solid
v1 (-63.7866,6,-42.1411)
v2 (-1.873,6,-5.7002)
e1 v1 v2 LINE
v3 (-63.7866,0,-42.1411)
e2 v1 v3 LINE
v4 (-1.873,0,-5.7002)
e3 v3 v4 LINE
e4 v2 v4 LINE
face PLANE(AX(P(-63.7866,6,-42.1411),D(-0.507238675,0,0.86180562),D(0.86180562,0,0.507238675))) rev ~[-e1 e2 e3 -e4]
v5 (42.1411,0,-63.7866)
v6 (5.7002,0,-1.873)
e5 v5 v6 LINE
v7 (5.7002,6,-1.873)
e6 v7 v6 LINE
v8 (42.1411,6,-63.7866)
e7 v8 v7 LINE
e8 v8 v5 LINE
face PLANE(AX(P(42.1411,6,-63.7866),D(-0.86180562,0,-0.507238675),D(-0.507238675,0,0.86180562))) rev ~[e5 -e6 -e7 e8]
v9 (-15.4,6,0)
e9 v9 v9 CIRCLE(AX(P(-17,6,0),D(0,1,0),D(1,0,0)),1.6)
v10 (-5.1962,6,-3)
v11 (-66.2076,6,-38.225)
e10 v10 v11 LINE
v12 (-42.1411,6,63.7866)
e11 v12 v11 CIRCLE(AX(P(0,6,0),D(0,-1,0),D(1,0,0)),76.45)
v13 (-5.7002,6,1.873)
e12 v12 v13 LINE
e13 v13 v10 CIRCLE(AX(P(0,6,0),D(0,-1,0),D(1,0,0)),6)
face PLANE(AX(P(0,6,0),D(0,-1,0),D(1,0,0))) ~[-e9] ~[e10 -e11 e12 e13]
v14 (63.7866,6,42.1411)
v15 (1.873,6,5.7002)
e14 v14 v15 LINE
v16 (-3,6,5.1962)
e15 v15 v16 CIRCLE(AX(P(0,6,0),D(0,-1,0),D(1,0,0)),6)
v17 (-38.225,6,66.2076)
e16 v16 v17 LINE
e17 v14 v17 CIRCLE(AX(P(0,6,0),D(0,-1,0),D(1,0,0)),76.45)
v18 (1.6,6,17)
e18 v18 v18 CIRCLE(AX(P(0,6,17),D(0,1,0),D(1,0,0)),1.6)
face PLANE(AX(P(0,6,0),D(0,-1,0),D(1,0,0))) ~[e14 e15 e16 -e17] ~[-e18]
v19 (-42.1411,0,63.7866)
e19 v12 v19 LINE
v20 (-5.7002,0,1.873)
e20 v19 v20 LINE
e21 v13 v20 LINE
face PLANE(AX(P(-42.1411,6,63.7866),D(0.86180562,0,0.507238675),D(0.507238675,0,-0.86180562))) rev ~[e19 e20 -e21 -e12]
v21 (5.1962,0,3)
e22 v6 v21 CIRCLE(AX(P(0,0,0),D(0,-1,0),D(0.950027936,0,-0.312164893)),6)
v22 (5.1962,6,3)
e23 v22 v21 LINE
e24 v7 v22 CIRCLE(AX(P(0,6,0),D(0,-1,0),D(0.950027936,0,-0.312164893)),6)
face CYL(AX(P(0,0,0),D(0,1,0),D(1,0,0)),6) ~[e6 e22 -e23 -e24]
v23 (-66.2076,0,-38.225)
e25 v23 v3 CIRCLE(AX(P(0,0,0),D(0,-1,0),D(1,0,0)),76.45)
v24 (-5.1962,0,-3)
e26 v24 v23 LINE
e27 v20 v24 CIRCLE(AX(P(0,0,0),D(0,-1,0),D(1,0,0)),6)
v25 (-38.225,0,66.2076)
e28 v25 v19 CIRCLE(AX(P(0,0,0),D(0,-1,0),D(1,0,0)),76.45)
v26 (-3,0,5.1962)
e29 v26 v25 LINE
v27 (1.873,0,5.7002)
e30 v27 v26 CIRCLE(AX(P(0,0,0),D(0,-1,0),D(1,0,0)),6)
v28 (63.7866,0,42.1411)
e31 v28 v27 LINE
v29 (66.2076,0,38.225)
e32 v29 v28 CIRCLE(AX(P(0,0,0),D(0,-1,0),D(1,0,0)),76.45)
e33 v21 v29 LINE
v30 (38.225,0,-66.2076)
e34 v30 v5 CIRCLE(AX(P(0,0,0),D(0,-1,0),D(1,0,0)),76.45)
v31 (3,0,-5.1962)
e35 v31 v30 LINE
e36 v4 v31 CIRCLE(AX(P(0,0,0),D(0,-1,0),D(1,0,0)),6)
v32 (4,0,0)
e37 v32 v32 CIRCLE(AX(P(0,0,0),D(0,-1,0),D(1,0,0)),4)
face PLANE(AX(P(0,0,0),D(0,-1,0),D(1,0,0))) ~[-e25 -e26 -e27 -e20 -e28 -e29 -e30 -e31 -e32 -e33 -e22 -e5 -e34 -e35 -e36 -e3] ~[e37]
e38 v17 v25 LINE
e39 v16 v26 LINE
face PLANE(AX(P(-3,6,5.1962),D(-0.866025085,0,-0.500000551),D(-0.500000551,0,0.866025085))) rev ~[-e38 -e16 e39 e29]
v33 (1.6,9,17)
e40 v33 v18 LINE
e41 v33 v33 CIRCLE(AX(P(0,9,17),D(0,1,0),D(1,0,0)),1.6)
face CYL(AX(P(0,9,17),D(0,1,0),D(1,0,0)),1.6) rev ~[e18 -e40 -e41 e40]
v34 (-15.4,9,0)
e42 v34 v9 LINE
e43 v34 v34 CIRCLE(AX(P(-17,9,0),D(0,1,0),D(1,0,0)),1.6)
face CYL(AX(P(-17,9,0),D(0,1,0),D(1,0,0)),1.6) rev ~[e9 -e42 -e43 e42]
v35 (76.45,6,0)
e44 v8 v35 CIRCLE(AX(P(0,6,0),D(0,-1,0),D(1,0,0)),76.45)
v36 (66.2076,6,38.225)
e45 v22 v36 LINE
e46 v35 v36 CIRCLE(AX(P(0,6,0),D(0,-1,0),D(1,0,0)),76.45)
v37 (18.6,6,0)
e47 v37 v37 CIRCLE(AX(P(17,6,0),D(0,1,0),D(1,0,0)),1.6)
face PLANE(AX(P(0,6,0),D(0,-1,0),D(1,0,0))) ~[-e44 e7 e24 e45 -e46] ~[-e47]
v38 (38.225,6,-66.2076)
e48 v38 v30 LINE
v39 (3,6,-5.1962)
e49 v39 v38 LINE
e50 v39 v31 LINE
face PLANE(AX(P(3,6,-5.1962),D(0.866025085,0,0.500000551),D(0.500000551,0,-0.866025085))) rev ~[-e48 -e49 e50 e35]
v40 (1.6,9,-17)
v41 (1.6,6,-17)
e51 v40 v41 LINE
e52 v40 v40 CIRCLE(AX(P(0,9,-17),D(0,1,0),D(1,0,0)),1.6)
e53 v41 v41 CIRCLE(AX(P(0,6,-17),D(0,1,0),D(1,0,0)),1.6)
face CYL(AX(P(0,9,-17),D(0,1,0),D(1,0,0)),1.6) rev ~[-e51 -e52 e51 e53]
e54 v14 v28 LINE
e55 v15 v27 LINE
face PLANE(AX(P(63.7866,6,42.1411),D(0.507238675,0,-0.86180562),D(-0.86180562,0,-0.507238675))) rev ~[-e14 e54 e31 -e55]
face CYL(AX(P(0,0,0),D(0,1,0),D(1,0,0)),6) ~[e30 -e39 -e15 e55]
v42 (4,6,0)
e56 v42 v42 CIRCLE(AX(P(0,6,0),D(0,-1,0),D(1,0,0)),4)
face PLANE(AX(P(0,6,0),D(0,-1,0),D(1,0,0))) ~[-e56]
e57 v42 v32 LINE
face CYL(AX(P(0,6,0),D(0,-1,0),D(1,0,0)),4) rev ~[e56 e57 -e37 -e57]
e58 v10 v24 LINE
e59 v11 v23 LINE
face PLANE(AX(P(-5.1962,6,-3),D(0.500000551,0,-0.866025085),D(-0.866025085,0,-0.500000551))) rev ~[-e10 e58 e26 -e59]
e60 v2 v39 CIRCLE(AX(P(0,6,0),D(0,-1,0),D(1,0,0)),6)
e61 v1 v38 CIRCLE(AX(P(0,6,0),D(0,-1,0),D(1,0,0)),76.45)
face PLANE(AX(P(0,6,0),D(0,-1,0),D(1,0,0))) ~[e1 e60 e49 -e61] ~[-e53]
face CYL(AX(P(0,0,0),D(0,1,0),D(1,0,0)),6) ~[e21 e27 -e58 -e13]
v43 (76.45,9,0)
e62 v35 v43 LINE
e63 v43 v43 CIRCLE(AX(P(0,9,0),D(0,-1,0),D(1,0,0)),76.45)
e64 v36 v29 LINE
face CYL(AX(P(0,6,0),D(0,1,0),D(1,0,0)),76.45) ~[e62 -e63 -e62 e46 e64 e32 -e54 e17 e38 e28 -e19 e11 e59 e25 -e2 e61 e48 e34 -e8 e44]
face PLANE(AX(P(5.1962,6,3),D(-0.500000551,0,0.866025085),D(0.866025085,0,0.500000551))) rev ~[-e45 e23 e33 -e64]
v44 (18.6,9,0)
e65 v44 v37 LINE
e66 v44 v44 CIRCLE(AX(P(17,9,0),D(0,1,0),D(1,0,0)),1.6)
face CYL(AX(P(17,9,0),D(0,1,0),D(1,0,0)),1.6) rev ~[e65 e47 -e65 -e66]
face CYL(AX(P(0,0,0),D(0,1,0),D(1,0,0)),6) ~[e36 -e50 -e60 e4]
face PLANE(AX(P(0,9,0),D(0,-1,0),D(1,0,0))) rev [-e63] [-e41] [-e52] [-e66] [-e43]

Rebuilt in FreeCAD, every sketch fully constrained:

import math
import FreeCAD as App
import Part
import Sketcher

V = App.Vector
Q = App.Units.Quantity


def add_polygon(sketch, points):
    """Adds a closed chain of lines whose ends are joined by coincident constraints."""
    first, n = sketch.GeometryCount, len(points)
    for a, b in zip(points, points[1:] + points[:1]):
        sketch.addGeometry(Part.LineSegment(App.Vector(*a, 0), App.Vector(*b, 0)), False)
    for i in range(n):
        sketch.addConstraint(Sketcher.Constraint("Coincident", first + i, 2, first + (i + 1) % n, 1))

doc = App.newDocument("Part")
body = doc.addObject("PartDesign::Body", "Body")

# Sketch on XY plane
sketch1 = body.newObject("Sketcher::SketchObject", "Sketch")
sketch1.AttachmentSupport = (doc.getObject("XY_Plane"), [""])
sketch1.MapMode = "FlatFace"
add_polygon(sketch1, [(4, 6), (4, 0), (6, 0), (6, 6), (76.5, 6), (76.5, 9), (0, 9), (0, 6)])  # lines 0-7
sketch1.addConstraint([
    Sketcher.Constraint("Vertical", 0),
    Sketcher.Constraint("Horizontal", 1),
    Sketcher.Constraint("Vertical", 2),
    Sketcher.Constraint("Horizontal", 3),
    Sketcher.Constraint("Vertical", 4),
    Sketcher.Constraint("Horizontal", 5),
    Sketcher.Constraint("Vertical", 6),
    Sketcher.Constraint("Horizontal", 7),
    Sketcher.Constraint("PointOnObject", 0, 2, -1),
    Sketcher.Constraint("PointOnObject", 5, 2, -2),
    Sketcher.Constraint("Horizontal", 3, 2, 6, 2),
    Sketcher.Constraint("DistanceX", 1, 1, 1, 2, 2.0),
    Sketcher.Constraint("DistanceX", 7, 1, 7, 2, 4.0),
    Sketcher.Constraint("DistanceY", 0, 2, 0, 1, 6.0),
    Sketcher.Constraint("DistanceY", 4, 1, 4, 2, 3.0),
    Sketcher.Constraint("DistanceX", 3, 1, 3, 2, 70.45),
])
revolution = body.newObject("PartDesign::Revolution", "Revolution")
revolution.Profile = sketch1
revolution.ReferenceAxis = (sketch1, ["V_Axis"])
revolution.Angle = 360

# Sketch on XZ plane
sketch2 = body.newObject("Sketcher::SketchObject", "Sketch001")
sketch2.AttachmentSupport = (doc.getObject("XZ_Plane"), [""])
sketch2.MapMode = "FlatFace"
sketch2.AttachmentOffset = App.Placement(V(0, 0, -9), App.Rotation())
sketch2.addGeometry([
    Part.Circle(V(17, 0, 0), V(0, 0, 1), 1.6),
    Part.Circle(V(-17, 0, 0), V(0, 0, 1), 1.6),
    Part.Circle(V(0, -17, 0), V(0, 0, 1), 1.6),
    Part.Circle(V(0, 17, 0), V(0, 0, 1), 1.6),
], False)
sketch2.addConstraint([
    Sketcher.Constraint("Equal", 0, 1),
    Sketcher.Constraint("Equal", 1, 2),
    Sketcher.Constraint("Equal", 2, 3),
    Sketcher.Constraint("Symmetric", 0, 3, 1, 3, -1, 1),
    Sketcher.Constraint("Symmetric", 2, 3, 3, 3, -1, 1),
    Sketcher.Constraint("PointOnObject", 0, 3, -1),
    Sketcher.Constraint("PointOnObject", 2, 3, -2),
    Sketcher.Constraint("Diameter", 0, 3.2),
    Sketcher.Constraint("DistanceX", -1, 1, 0, 3, 17.0),
    Sketcher.Constraint("DistanceY", 2, 3, -1, 1, 17.0),
])
pocket1 = body.newObject("PartDesign::Pocket", "Pocket")
pocket1.Profile = sketch2
pocket1.Type = "ThroughAll"
pocket1.Reversed = True

# Sketch on XZ plane
sketch3 = body.newObject("Sketcher::SketchObject", "Sketch002")
sketch3.AttachmentSupport = (doc.getObject("XZ_Plane"), [""])
sketch3.MapMode = "FlatFace"
sketch3.AttachmentOffset = App.Placement(V(0, 0, -6), App.Rotation())
sketch3.addGeometry([
    Part.LineSegment(V(5.2, 3, 0), V(66.2, 38.2, 0)),  # 0
    Part.ArcOfCircle(Part.Circle(V(0, 0, 0), V(0, 0, 1), 76.5), math.radians(30), math.radians(33.45)),  # 1
    Part.LineSegment(V(63.8, 42.1, 0), V(1.9, 5.7, 0)),  # 2
    Part.ArcOfCircle(Part.Circle(V(0, 0, 0), V(0, 0, 1), 6), math.radians(30), math.radians(72)),  # 3
    Part.ArcOfCircle(Part.Circle(V(0, 0, 0), V(0, 0, 1), 76.5), math.radians(-60), math.radians(-56.55)),  # 4
    Part.LineSegment(V(42.1, -63.8, 0), V(5.7, -1.9, 0)),  # 5
    Part.ArcOfCircle(Part.Circle(V(0, 0, 0), V(0, 0, 1), 6), math.radians(-60), math.radians(-18)),  # 6
    Part.LineSegment(V(3, -5.2, 0), V(38.2, -66.2, 0)),  # 7
    Part.LineSegment(V(-3, 5.2, 0), V(-38.2, 66.2, 0)),  # 8
    Part.ArcOfCircle(Part.Circle(V(0, 0, 0), V(0, 0, 1), 76.5), math.radians(120), math.radians(123.45)),  # 9
    Part.LineSegment(V(-42.1, 63.8, 0), V(-5.7, 1.9, 0)),  # 10
    Part.ArcOfCircle(Part.Circle(V(0, 0, 0), V(0, 0, 1), 6), math.radians(120), math.radians(162)),  # 11
    Part.ArcOfCircle(Part.Circle(V(0, 0, 0), V(0, 0, 1), 76.5), math.radians(-150), math.radians(-146.55)),  # 12
    Part.LineSegment(V(-63.8, -42.1, 0), V(-1.9, -5.7, 0)),  # 13
    Part.ArcOfCircle(Part.Circle(V(0, 0, 0), V(0, 0, 1), 6), math.radians(-150), math.radians(-108)),  # 14
    Part.LineSegment(V(-5.2, -3, 0), V(-66.2, -38.2, 0)),  # 15
], False)
sketch3.addConstraint([
    Sketcher.Constraint("Coincident", 0, 2, 1, 1),
    Sketcher.Constraint("Coincident", 1, 2, 2, 1),
    Sketcher.Constraint("Coincident", 2, 2, 3, 2),
    Sketcher.Constraint("Coincident", 3, 1, 0, 1),
    Sketcher.Constraint("Coincident", 4, 2, 5, 1),
    Sketcher.Constraint("Coincident", 5, 2, 6, 2),
    Sketcher.Constraint("Coincident", 6, 1, 7, 1),
    Sketcher.Constraint("Coincident", 7, 2, 4, 1),
    Sketcher.Constraint("Coincident", 8, 2, 9, 1),
    Sketcher.Constraint("Coincident", 9, 2, 10, 1),
    Sketcher.Constraint("Coincident", 10, 2, 11, 2),
    Sketcher.Constraint("Coincident", 11, 1, 8, 1),
    Sketcher.Constraint("Coincident", 12, 2, 13, 1),
    Sketcher.Constraint("Coincident", 13, 2, 14, 2),
    Sketcher.Constraint("Coincident", 14, 1, 15, 1),
    Sketcher.Constraint("Coincident", 15, 2, 12, 1),
    Sketcher.Constraint("Coincident", 1, 3, -1, 1),
    Sketcher.Constraint("Coincident", 3, 3, -1, 1),
    Sketcher.Constraint("Coincident", 4, 3, -1, 1),
    Sketcher.Constraint("Coincident", 6, 3, -1, 1),
    Sketcher.Constraint("Coincident", 9, 3, -1, 1),
    Sketcher.Constraint("Coincident", 11, 3, -1, 1),
    Sketcher.Constraint("Coincident", 12, 3, -1, 1),
    Sketcher.Constraint("Coincident", 14, 3, -1, 1),
    Sketcher.Constraint("Equal", 1, 4),
    Sketcher.Constraint("Equal", 3, 6),
    Sketcher.Constraint("Equal", 4, 9),
    Sketcher.Constraint("Equal", 6, 11),
    Sketcher.Constraint("Equal", 9, 12),
    Sketcher.Constraint("Equal", 11, 14),
    Sketcher.Constraint("Perpendicular", 2, 5),
    Sketcher.Constraint("Perpendicular", 0, 7),
    Sketcher.Constraint("Parallel", 7, 8),
    Sketcher.Constraint("Parallel", 5, 10),
    Sketcher.Constraint("Perpendicular", 10, 13),
    Sketcher.Constraint("Perpendicular", 8, 15),
    Sketcher.Constraint("Equal", 2, 5),
    Sketcher.Constraint("Equal", 5, 10),
    Sketcher.Constraint("Equal", 10, 13),
    Sketcher.Constraint("Radius", 3, 6.0),
    Sketcher.Constraint("Angle", 0, Q("30 deg")),
    Sketcher.Constraint("Radius", 1, 76.45),
    Sketcher.Constraint("DistanceY", -1, 1, 3, 1, 3.0),
    Sketcher.Constraint("DistanceX", -1, 1, 6, 1, 3.0),
    Sketcher.Constraint("DistanceX", 11, 1, -1, 1, 3.0),
    Sketcher.Constraint("DistanceY", 14, 1, -1, 1, 3.0),
    Sketcher.Constraint("Angle", 2, Q("-149.52 deg")),
    Sketcher.Constraint("DistanceY", -1, 1, 1, 2, 42.141),
])
pad1 = body.newObject("PartDesign::Pad", "Pad")
pad1.Profile = sketch3
pad1.Length = 6

doc.recompute()
